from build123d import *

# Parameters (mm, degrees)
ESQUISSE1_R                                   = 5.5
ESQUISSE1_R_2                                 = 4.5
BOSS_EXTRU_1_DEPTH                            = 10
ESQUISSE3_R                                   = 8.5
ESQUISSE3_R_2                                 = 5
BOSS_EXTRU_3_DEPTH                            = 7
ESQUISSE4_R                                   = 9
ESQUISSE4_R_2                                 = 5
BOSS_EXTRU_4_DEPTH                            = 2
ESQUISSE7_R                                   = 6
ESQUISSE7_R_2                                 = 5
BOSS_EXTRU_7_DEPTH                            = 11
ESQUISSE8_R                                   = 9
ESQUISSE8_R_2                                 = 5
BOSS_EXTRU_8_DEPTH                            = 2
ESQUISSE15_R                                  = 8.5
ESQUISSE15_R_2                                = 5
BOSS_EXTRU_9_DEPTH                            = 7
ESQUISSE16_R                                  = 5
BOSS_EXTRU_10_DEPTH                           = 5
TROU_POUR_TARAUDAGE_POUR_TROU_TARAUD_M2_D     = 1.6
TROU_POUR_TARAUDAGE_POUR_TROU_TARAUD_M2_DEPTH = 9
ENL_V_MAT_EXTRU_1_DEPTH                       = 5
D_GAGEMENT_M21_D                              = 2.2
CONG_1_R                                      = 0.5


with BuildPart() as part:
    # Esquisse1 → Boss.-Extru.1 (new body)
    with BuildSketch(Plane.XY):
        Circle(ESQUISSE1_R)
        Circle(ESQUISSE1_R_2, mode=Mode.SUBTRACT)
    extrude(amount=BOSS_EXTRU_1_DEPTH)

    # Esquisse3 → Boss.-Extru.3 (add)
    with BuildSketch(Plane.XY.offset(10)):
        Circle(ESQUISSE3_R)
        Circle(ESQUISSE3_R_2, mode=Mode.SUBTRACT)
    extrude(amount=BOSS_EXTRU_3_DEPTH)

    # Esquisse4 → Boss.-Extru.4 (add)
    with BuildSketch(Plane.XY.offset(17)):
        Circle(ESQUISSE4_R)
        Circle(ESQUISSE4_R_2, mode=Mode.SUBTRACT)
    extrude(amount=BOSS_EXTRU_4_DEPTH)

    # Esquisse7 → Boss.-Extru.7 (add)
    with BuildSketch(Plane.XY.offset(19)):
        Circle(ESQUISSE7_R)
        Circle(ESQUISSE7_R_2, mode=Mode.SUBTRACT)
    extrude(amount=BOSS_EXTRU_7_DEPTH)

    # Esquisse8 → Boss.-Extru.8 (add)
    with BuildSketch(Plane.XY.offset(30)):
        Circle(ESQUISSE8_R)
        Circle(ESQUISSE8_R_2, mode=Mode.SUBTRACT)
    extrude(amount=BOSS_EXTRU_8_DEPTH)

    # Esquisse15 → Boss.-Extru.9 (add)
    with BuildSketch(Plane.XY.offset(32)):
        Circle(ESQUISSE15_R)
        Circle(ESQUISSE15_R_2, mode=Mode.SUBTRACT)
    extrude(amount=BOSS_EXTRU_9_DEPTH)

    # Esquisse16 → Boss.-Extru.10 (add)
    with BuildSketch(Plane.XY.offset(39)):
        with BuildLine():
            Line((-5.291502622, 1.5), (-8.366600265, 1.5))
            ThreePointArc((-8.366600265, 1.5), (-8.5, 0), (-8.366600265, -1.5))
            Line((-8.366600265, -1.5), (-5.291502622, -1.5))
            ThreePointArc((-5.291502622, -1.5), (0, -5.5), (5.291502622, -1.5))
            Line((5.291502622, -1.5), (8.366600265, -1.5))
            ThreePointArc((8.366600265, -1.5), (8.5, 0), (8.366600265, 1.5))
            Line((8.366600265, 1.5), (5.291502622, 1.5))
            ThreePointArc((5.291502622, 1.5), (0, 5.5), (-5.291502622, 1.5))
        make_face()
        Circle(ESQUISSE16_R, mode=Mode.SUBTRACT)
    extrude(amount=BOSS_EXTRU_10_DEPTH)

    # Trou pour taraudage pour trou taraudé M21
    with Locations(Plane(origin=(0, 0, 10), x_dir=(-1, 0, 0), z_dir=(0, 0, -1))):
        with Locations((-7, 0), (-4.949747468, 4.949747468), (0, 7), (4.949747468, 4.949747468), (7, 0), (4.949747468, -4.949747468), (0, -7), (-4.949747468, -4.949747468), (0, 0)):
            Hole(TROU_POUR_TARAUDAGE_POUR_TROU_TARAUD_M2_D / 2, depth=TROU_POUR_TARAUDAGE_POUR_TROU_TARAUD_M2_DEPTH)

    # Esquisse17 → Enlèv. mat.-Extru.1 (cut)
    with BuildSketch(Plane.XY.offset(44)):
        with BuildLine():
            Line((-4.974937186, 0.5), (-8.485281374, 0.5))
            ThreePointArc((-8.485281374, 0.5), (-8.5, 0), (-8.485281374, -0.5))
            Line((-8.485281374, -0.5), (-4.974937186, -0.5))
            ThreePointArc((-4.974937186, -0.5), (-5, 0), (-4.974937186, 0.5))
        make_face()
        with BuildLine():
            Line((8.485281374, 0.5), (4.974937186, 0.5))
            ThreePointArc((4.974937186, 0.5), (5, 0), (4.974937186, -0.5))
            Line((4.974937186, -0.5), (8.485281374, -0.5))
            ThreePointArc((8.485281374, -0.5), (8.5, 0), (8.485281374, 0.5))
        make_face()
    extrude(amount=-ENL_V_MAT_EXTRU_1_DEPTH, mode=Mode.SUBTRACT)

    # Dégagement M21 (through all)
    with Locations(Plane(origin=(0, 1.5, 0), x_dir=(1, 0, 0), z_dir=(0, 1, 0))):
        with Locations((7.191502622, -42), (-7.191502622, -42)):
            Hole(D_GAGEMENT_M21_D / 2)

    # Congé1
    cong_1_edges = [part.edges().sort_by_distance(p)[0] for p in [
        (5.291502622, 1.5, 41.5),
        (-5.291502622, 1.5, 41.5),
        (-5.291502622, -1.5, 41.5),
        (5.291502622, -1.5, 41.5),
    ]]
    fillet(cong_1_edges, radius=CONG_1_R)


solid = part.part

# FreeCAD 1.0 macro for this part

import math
import FreeCAD as App
import Part
import Sketcher
from FreeCAD import Vector
Q = App.Units.Quantity


def edges_at(feature, points):
    """Names of the edges that pass closest to the given points."""
    edges = feature.Shape.Edges
    near = lambda p: min(range(len(edges)), key=lambda i: edges[i].distToShape(Part.Vertex(*p))[0])
    return sorted({f"Edge{near(p) + 1}" for p in points})

doc = App.newDocument("Part")
body = doc.addObject("PartDesign::Body", "Body")

# Sketch on XY plane
sketch1 = body.newObject("Sketcher::SketchObject", "Sketch")
sketch1.AttachmentSupport = (doc.getObject("XY_Plane"), [""])
sketch1.MapMode = "FlatFace"
sketch1.addGeometry([
    Part.Circle(Vector(0, 0, 0), Vector(0, 0, 1), 5.5),
    Part.Circle(Vector(0, 0, 0), Vector(0, 0, 1), 4.5),
], False)
sketch1.addConstraint([
    Sketcher.Constraint("Coincident", 0, 3, -1, 1),
    Sketcher.Constraint("Coincident", 1, 3, -1, 1),
    Sketcher.Constraint("Diameter", 0, Q("11 mm")),
    Sketcher.Constraint("Diameter", 1, Q("9 mm")),
])
pad1 = body.newObject("PartDesign::Pad", "Pad")
pad1.Profile = sketch1
pad1.Length = 10

# Sketch on XY plane
sketch2 = body.newObject("Sketcher::SketchObject", "Sketch001")
sketch2.AttachmentSupport = (doc.getObject("XY_Plane"), [""])
sketch2.MapMode = "FlatFace"
sketch2.AttachmentOffset = App.Placement(Vector(0, 0, 10), App.Rotation())
sketch2.addGeometry([
    Part.Circle(Vector(0, 0, 0), Vector(0, 0, 1), 8.5),
    Part.Circle(Vector(0, 0, 0), Vector(0, 0, 1), 5),
], False)
sketch2.addConstraint([
    Sketcher.Constraint("Coincident", 0, 3, -1, 1),
    Sketcher.Constraint("Coincident", 1, 3, -1, 1),
    Sketcher.Constraint("Diameter", 0, Q("17 mm")),
    Sketcher.Constraint("Diameter", 1, Q("10 mm")),
])
pad2 = body.newObject("PartDesign::Pad", "Pad001")
pad2.Profile = sketch2
pad2.Length = 7

# Sketch on XY plane
sketch3 = body.newObject("Sketcher::SketchObject", "Sketch002")
sketch3.AttachmentSupport = (doc.getObject("XY_Plane"), [""])
sketch3.MapMode = "FlatFace"
sketch3.AttachmentOffset = App.Placement(Vector(0, 0, 17), App.Rotation())
sketch3.addGeometry([
    Part.Circle(Vector(0, 0, 0), Vector(0, 0, 1), 9),
    Part.Circle(Vector(0, 0, 0), Vector(0, 0, 1), 5),
], False)
sketch3.addConstraint([
    Sketcher.Constraint("Coincident", 0, 3, -1, 1),
    Sketcher.Constraint("Coincident", 1, 3, -1, 1),
    Sketcher.Constraint("Diameter", 0, Q("18 mm")),
    Sketcher.Constraint("Diameter", 1, Q("10 mm")),
])
pad3 = body.newObject("PartDesign::Pad", "Pad002")
pad3.Profile = sketch3
pad3.Length = 2

# Sketch on XY plane
sketch4 = body.newObject("Sketcher::SketchObject", "Sketch003")
sketch4.AttachmentSupport = (doc.getObject("XY_Plane"), [""])
sketch4.MapMode = "FlatFace"
sketch4.AttachmentOffset = App.Placement(Vector(0, 0, 19), App.Rotation())
sketch4.addGeometry([
    Part.Circle(Vector(0, 0, 0), Vector(0, 0, 1), 6),
    Part.Circle(Vector(0, 0, 0), Vector(0, 0, 1), 5),
], False)
sketch4.addConstraint([
    Sketcher.Constraint("Coincident", 0, 3, -1, 1),
    Sketcher.Constraint("Coincident", 1, 3, -1, 1),
    Sketcher.Constraint("Diameter", 0, Q("12 mm")),
    Sketcher.Constraint("Diameter", 1, Q("10 mm")),
])
pad4 = body.newObject("PartDesign::Pad", "Pad003")
pad4.Profile = sketch4
pad4.Length = 11

# Sketch on XY plane
sketch5 = body.newObject("Sketcher::SketchObject", "Sketch004")
sketch5.AttachmentSupport = (doc.getObject("XY_Plane"), [""])
sketch5.MapMode = "FlatFace"
sketch5.AttachmentOffset = App.Placement(Vector(0, 0, 30), App.Rotation())
sketch5.addGeometry([
    Part.Circle(Vector(0, 0, 0), Vector(0, 0, 1), 9),
    Part.Circle(Vector(0, 0, 0), Vector(0, 0, 1), 5),
], False)
sketch5.addConstraint([
    Sketcher.Constraint("Coincident", 0, 3, -1, 1),
    Sketcher.Constraint("Coincident", 1, 3, -1, 1),
    Sketcher.Constraint("Diameter", 0, Q("18 mm")),
    Sketcher.Constraint("Diameter", 1, Q("10 mm")),
])
pad5 = body.newObject("PartDesign::Pad", "Pad004")
pad5.Profile = sketch5
pad5.Length = 2

# Sketch on XY plane
sketch6 = body.newObject("Sketcher::SketchObject", "Sketch005")
sketch6.AttachmentSupport = (doc.getObject("XY_Plane"), [""])
sketch6.MapMode = "FlatFace"
sketch6.AttachmentOffset = App.Placement(Vector(0, 0, 32), App.Rotation())
sketch6.addGeometry([
    Part.Circle(Vector(0, 0, 0), Vector(0, 0, 1), 8.5),
    Part.Circle(Vector(0, 0, 0), Vector(0, 0, 1), 5),
], False)
sketch6.addConstraint([
    Sketcher.Constraint("Coincident", 0, 3, -1, 1),
    Sketcher.Constraint("Coincident", 1, 3, -1, 1),
    Sketcher.Constraint("Diameter", 0, Q("17 mm")),
    Sketcher.Constraint("Diameter", 1, Q("10 mm")),
])
pad6 = body.newObject("PartDesign::Pad", "Pad005")
pad6.Profile = sketch6
pad6.Length = 7

# Sketch on XY plane
sketch7 = body.newObject("Sketcher::SketchObject", "Sketch006")
sketch7.AttachmentSupport = (doc.getObject("XY_Plane"), [""])
sketch7.MapMode = "FlatFace"
sketch7.AttachmentOffset = App.Placement(Vector(0, 0, 39), App.Rotation())
sketch7.addGeometry([
    Part.LineSegment(Vector(-5.291503, 1.5, 0), Vector(-8.3666, 1.5, 0)),  # 0
    Part.ArcOfCircle(Part.Circle(Vector(0, 0, 0), Vector(0, 0, 1), 8.5), math.radians(169.835751), math.radians(190.164249)),  # 1
    Part.LineSegment(Vector(-8.3666, -1.5, 0), Vector(-5.291503, -1.5, 0)),  # 2
    Part.ArcOfCircle(Part.Circle(Vector(0, 0, 0), Vector(0, 0, 1), 5.5), math.radians(-164.17338), math.radians(-15.82662)),  # 3
    Part.LineSegment(Vector(5.291503, -1.5, 0), Vector(8.3666, -1.5, 0)),  # 4
    Part.ArcOfCircle(Part.Circle(Vector(0, 0, 0), Vector(0, 0, 1), 8.5), math.radians(-10.164249), math.radians(10.164249)),  # 5
    Part.LineSegment(Vector(8.3666, 1.5, 0), Vector(5.291503, 1.5, 0)),  # 6
    Part.ArcOfCircle(Part.Circle(Vector(0, 0, 0), Vector(0, 0, 1), 5.5), math.radians(15.82662), math.radians(164.17338)),  # 7
    Part.Circle(Vector(0, 0, 0), Vector(0, 0, 1), 5),  # 8
], False)
sketch7.addConstraint([
    Sketcher.Constraint("Coincident", 0, 2, 1, 1),
    Sketcher.Constraint("Coincident", 1, 2, 2, 1),
    Sketcher.Constraint("Coincident", 2, 2, 3, 1),
    Sketcher.Constraint("Coincident", 3, 2, 4, 1),
    Sketcher.Constraint("Coincident", 4, 2, 5, 1),
    Sketcher.Constraint("Coincident", 5, 2, 6, 1),
    Sketcher.Constraint("Coincident", 6, 2, 7, 1),
    Sketcher.Constraint("Coincident", 7, 2, 0, 1),
    Sketcher.Constraint("Horizontal", 0),
    Sketcher.Constraint("Horizontal", 2),
    Sketcher.Constraint("Horizontal", 4),
    Sketcher.Constraint("Horizontal", 6),
    Sketcher.Constraint("Coincident", 1, 3, -1, 1),
    Sketcher.Constraint("Coincident", 3, 3, -1, 1),
    Sketcher.Constraint("Coincident", 5, 3, -1, 1),
    Sketcher.Constraint("Coincident", 7, 3, -1, 1),
    Sketcher.Constraint("Coincident", 8, 3, -1, 1),
    Sketcher.Constraint("Equal", 1, 5),
    Sketcher.Constraint("Equal", 3, 7),
    Sketcher.Constraint("Horizontal", 2, 2, 3, 2),
    Sketcher.Constraint("Horizontal", 0, 2, 5, 2),
    Sketcher.Constraint("Vertical", 0, 2, 1, 2),
    Sketcher.Constraint("Diameter", 8, Q("10 mm")),
    Sketcher.Constraint("Radius", 1, Q("8.5 mm")),
    Sketcher.Constraint("Radius", 3, Q("5.5 mm")),
    Sketcher.Constraint("DistanceY", 1, 2, 0, 2, Q("3 mm")),
])
pad7 = body.newObject("PartDesign::Pad", "Pad006")
pad7.Profile = sketch7
pad7.Length = 5

# Sketch on XY plane
sketch8 = body.newObject("Sketcher::SketchObject", "Sketch007")
sketch8.AttachmentSupport = (doc.getObject("XY_Plane"), [""])
sketch8.MapMode = "FlatFace"
sketch8.AttachmentOffset = App.Placement(Vector(0, 0, 10), App.Rotation())
sketch8.addGeometry([
    Part.Circle(Vector(7, 0, 0), Vector(0, 0, 1), 0.8),  # 0
    Part.Circle(Vector(4.949747, 4.949747, 0), Vector(0, 0, 1), 0.8),  # 1
    Part.Circle(Vector(0, 7, 0), Vector(0, 0, 1), 0.8),  # 2
    Part.Circle(Vector(-4.949747, 4.949747, 0), Vector(0, 0, 1), 0.8),  # 3
    Part.Circle(Vector(-7, 0, 0), Vector(0, 0, 1), 0.8),  # 4
    Part.Circle(Vector(-4.949747, -4.949747, 0), Vector(0, 0, 1), 0.8),  # 5
    Part.Circle(Vector(0, -7, 0), Vector(0, 0, 1), 0.8),  # 6
    Part.Circle(Vector(4.949747, -4.949747, 0), Vector(0, 0, 1), 0.8),  # 7
    Part.Circle(Vector(0, 0, 0), Vector(0, 0, 1), 0.8),  # 8
], False)
sketch8.addConstraint([
    Sketcher.Constraint("Coincident", 8, 3, -1, 1),
    Sketcher.Constraint("Equal", 0, 1),
    Sketcher.Constraint("Equal", 1, 2),
    Sketcher.Constraint("Equal", 2, 3),
    Sketcher.Constraint("Equal", 3, 4),
    Sketcher.Constraint("Equal", 4, 5),
    Sketcher.Constraint("Equal", 5, 6),
    Sketcher.Constraint("Equal", 6, 7),
    Sketcher.Constraint("Equal", 7, 8),
    Sketcher.Constraint("Symmetric", 0, 3, 4, 3, -1, 1),
    Sketcher.Constraint("Symmetric", 1, 3, 5, 3, -1, 1),
    Sketcher.Constraint("Symmetric", 2, 3, 6, 3, -1, 1),
    Sketcher.Constraint("Symmetric", 3, 3, 7, 3, -1, 1),
    Sketcher.Constraint("Symmetric", 1, 3, 3, 3, -2),
    Sketcher.Constraint("PointOnObject", 0, 3, -1),
    Sketcher.Constraint("PointOnObject", 2, 3, -2),
    Sketcher.Constraint("Diameter", 0, Q("1.6 mm")),
    Sketcher.Constraint("DistanceX", -1, 1, 0, 3, Q("7 mm")),
    Sketcher.Constraint("DistanceY", -1, 1, 2, 3, Q("7 mm")),
    Sketcher.Constraint("DistanceX", -1, 1, 1, 3, Q("4.949747 mm")),
    Sketcher.Constraint("DistanceY", -1, 1, 1, 3, Q("4.949747 mm")),
])
doc.recompute()
hole = body.newObject("PartDesign::Hole", "Hole")
hole.Profile = sketch8
hole.ThreadType = "None"
hole.Diameter = 1.6
hole.DepthType = "Dimension"
hole.Depth = 9
hole.DrillPoint = "Flat"
hole.Reversed = True

# Sketch on XY plane
sketch9 = body.newObject("Sketcher::SketchObject", "Sketch008")
sketch9.AttachmentSupport = (doc.getObject("XY_Plane"), [""])
sketch9.MapMode = "FlatFace"
sketch9.AttachmentOffset = App.Placement(Vector(0, 0, 44), App.Rotation())
sketch9.addGeometry([
    Part.LineSegment(Vector(-4.974937, 0.5, 0), Vector(-8.485281, 0.5, 0)),  # 0
    Part.ArcOfCircle(Part.Circle(Vector(0, 0, 0), Vector(0, 0, 1), 8.5), math.radians(176.627713), math.radians(183.372287)),  # 1
    Part.LineSegment(Vector(-8.485281, -0.5, 0), Vector(-4.974937, -0.5, 0)),  # 2
    Part.ArcOfCircle(Part.Circle(Vector(0, 0, 0), Vector(0, 0, 1), 5), math.radians(174.26083), math.radians(185.73917)),  # 3
    Part.LineSegment(Vector(8.485281, 0.5, 0), Vector(4.974937, 0.5, 0)),  # 4
    Part.ArcOfCircle(Part.Circle(Vector(0, 0, 0), Vector(0, 0, 1), 5), math.radians(-5.73917), math.radians(5.73917)),  # 5
    Part.LineSegment(Vector(4.974937, -0.5, 0), Vector(8.485281, -0.5, 0)),  # 6
    Part.ArcOfCircle(Part.Circle(Vector(0, 0, 0), Vector(0, 0, 1), 8.5), math.radians(-3.372287), math.radians(3.372287)),  # 7
], False)
sketch9.addConstraint([
    Sketcher.Constraint("Coincident", 0, 2, 1, 1),
    Sketcher.Constraint("Coincident", 1, 2, 2, 1),
    Sketcher.Constraint("Coincident", 2, 2, 3, 2),
    Sketcher.Constraint("Coincident", 3, 1, 0, 1),
    Sketcher.Constraint("Coincident", 4, 2, 5, 2),
    Sketcher.Constraint("Coincident", 5, 1, 6, 1),
    Sketcher.Constraint("Coincident", 6, 2, 7, 1),
    Sketcher.Constraint("Coincident", 7, 2, 4, 1),
    Sketcher.Constraint("Horizontal", 0),
    Sketcher.Constraint("Horizontal", 2),
    Sketcher.Constraint("Horizontal", 4),
    Sketcher.Constraint("Horizontal", 6),
    Sketcher.Constraint("Coincident", 1, 3, -1, 1),
    Sketcher.Constraint("Coincident", 3, 3, -1, 1),
    Sketcher.Constraint("Coincident", 5, 3, -1, 1),
    Sketcher.Constraint("Coincident", 7, 3, -1, 1),
    Sketcher.Constraint("Equal", 3, 5),
    Sketcher.Constraint("Equal", 1, 7),
    Sketcher.Constraint("Horizontal", 3, 1, 4, 2),
    Sketcher.Constraint("Horizontal", 2, 2, 5, 1),
    Sketcher.Constraint("Vertical", 0, 2, 1, 2),
    Sketcher.Constraint("Radius", 3, Q("5 mm")),
    Sketcher.Constraint("Radius", 1, Q("8.5 mm")),
    Sketcher.Constraint("DistanceY", 1, 2, 0, 2, Q("1 mm")),
])
pocket1 = body.newObject("PartDesign::Pocket", "Pocket")
pocket1.Profile = sketch9
pocket1.Length = 5

# Sketch on XZ plane
sketch10 = body.newObject("Sketcher::SketchObject", "Sketch009")
sketch10.AttachmentSupport = (doc.getObject("XZ_Plane"), [""])
sketch10.MapMode = "FlatFace"
sketch10.AttachmentOffset = App.Placement(Vector(0, 0, -1.5), App.Rotation())
sketch10.addGeometry([
    Part.Circle(Vector(7.191503, 42, 0), Vector(0, 0, 1), 1.1),
    Part.Circle(Vector(-7.191503, 42, 0), Vector(0, 0, 1), 1.1),
], False)
sketch10.addConstraint([
    Sketcher.Constraint("Equal", 0, 1),
    Sketcher.Constraint("Symmetric", 0, 3, 1, 3, -2),
    Sketcher.Constraint("Diameter", 0, Q("2.2 mm")),
    Sketcher.Constraint("DistanceY", -1, 1, 0, 3, Q("42 mm")),
    Sketcher.Constraint("DistanceX", -1, 1, 0, 3, Q("7.191503 mm")),
])
doc.recompute()
hole2 = body.newObject("PartDesign::Hole", "Hole001")
hole2.Profile = sketch10
hole2.ThreadType = "None"
hole2.Diameter = 2.2
hole2.DepthType = "ThroughAll"
hole2.Reversed = True
doc.recompute()

fillet = body.newObject("PartDesign::Fillet", "Fillet")
fillet.Base = (hole2, edges_at(hole2, [
    (5.292, 1.5, 41.5),
    (-5.292, 1.5, 41.5),
    (-5.292, -1.5, 41.5),
    (5.292, -1.5, 41.5),
]))
fillet.Radius = 0.5

doc.recompute()
